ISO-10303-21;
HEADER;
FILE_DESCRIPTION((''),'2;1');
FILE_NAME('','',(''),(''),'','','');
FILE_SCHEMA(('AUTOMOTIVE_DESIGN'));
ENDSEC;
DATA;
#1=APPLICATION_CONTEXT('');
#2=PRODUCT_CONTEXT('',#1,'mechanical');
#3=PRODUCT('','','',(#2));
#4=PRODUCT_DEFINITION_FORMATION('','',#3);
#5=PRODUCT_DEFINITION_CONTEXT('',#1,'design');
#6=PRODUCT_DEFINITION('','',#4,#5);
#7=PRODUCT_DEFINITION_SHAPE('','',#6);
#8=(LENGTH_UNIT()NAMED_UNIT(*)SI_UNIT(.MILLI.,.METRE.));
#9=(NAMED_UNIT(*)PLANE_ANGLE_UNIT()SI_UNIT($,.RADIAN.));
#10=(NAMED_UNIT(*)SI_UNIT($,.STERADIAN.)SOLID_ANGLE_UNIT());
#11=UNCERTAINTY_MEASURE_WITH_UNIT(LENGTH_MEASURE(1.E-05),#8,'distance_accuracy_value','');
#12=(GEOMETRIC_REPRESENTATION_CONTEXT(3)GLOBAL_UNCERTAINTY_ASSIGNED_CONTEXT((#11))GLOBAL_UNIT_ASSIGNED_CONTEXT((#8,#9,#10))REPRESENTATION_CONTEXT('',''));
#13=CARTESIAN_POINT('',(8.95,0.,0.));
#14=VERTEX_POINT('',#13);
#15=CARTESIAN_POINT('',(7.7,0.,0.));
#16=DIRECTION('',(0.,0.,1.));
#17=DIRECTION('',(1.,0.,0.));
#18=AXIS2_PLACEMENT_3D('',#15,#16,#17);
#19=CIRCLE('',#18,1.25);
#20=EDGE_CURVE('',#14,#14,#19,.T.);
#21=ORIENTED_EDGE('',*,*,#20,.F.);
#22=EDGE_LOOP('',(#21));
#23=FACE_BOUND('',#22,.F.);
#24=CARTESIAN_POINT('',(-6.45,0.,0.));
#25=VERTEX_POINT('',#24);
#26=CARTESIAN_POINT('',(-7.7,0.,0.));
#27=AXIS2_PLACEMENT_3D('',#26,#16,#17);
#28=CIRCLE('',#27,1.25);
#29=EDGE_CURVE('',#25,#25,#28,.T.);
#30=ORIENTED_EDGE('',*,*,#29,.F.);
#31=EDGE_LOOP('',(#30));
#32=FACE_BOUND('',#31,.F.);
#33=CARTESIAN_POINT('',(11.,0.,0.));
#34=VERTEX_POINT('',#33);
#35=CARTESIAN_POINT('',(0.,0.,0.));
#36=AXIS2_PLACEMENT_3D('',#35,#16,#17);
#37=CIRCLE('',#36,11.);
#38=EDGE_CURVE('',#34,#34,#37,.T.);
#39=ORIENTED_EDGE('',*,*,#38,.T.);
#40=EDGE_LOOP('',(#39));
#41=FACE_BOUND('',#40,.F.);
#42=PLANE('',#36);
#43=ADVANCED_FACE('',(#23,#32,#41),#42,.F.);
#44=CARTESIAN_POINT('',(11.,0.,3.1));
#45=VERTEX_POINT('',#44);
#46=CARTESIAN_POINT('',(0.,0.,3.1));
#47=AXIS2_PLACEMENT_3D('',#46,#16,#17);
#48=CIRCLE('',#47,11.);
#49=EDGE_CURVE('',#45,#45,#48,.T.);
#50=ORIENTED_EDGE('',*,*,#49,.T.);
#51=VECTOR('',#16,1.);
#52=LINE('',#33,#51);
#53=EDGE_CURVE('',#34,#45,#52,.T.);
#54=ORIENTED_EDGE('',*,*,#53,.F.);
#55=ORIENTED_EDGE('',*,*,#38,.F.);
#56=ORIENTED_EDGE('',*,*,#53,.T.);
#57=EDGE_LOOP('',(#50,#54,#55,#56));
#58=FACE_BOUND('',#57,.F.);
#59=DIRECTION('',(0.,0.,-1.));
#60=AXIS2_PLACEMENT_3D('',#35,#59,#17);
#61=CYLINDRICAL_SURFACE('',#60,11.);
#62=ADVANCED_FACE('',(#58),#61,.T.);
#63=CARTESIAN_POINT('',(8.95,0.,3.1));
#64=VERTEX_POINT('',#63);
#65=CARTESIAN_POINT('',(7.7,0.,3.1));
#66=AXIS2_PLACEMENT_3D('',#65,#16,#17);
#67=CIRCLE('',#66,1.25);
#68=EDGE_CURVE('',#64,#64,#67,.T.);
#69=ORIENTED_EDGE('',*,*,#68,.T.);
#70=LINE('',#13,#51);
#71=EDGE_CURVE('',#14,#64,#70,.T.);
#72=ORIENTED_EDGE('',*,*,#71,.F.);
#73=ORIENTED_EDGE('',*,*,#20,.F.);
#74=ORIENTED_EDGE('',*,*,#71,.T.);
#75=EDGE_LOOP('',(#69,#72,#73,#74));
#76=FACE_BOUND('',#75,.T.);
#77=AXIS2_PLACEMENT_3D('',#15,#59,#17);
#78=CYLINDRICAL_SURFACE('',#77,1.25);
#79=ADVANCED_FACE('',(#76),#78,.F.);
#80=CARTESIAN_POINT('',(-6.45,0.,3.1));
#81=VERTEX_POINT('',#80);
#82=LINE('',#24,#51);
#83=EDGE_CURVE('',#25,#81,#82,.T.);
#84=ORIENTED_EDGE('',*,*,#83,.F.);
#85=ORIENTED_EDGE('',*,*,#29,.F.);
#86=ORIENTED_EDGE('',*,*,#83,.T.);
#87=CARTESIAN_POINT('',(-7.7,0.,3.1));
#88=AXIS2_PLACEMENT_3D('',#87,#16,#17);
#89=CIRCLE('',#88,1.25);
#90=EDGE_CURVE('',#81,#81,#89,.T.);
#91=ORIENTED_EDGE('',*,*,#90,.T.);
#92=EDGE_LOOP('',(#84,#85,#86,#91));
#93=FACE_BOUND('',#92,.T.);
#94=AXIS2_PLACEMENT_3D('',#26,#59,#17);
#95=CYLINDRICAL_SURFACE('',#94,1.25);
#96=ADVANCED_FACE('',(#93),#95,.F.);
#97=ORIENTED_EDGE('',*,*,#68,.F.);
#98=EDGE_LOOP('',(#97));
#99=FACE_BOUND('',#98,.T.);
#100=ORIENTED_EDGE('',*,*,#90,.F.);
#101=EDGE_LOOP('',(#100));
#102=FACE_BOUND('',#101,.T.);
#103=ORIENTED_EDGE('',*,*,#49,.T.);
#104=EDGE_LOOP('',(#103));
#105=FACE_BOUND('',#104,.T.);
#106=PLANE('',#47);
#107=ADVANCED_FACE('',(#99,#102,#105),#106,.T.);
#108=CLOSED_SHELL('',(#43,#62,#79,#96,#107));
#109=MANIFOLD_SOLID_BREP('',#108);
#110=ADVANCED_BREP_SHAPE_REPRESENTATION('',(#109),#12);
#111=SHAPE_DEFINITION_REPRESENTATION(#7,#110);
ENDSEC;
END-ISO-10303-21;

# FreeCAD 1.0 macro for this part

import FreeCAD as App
import Part
import Sketcher
Q = App.Units.Quantity

doc = App.newDocument("Part")
body = doc.addObject("PartDesign::Body", "Body")

sketch1 = body.newObject("Sketcher::SketchObject", "Sketch")
sketch1.AttachmentSupport = (doc.getObject("XY_Plane"), [""])
sketch1.MapMode = "FlatFace"
sketch1.addGeometry([
    Part.Circle(App.Vector(0, 0, 0), App.Vector(0, 0, 1), 11),
    Part.Circle(App.Vector(-7.7, 0, 0), App.Vector(0, 0, 1), 1.2),
    Part.Circle(App.Vector(7.7, 0, 0), App.Vector(0, 0, 1), 1.2),
], False)
sketch1.addConstraint([
    Sketcher.Constraint("Coincident", 0, 3, -1, 1),
    Sketcher.Constraint("Equal", 1, 2),
    Sketcher.Constraint("Symmetric", 1, 3, 2, 3, -1, 1),
    Sketcher.Constraint("PointOnObject", 1, 3, -1),
    Sketcher.Constraint("Diameter", 0, Q("22 mm")),
    Sketcher.Constraint("Diameter", 1, Q("2.5 mm")),
    Sketcher.Constraint("DistanceX", 1, 3, 2, 3, Q("15.4 mm")),
])
pad1 = body.newObject("PartDesign::Pad", "Pad")
pad1.Profile = sketch1
pad1.Length = 3.1

doc.recompute()
